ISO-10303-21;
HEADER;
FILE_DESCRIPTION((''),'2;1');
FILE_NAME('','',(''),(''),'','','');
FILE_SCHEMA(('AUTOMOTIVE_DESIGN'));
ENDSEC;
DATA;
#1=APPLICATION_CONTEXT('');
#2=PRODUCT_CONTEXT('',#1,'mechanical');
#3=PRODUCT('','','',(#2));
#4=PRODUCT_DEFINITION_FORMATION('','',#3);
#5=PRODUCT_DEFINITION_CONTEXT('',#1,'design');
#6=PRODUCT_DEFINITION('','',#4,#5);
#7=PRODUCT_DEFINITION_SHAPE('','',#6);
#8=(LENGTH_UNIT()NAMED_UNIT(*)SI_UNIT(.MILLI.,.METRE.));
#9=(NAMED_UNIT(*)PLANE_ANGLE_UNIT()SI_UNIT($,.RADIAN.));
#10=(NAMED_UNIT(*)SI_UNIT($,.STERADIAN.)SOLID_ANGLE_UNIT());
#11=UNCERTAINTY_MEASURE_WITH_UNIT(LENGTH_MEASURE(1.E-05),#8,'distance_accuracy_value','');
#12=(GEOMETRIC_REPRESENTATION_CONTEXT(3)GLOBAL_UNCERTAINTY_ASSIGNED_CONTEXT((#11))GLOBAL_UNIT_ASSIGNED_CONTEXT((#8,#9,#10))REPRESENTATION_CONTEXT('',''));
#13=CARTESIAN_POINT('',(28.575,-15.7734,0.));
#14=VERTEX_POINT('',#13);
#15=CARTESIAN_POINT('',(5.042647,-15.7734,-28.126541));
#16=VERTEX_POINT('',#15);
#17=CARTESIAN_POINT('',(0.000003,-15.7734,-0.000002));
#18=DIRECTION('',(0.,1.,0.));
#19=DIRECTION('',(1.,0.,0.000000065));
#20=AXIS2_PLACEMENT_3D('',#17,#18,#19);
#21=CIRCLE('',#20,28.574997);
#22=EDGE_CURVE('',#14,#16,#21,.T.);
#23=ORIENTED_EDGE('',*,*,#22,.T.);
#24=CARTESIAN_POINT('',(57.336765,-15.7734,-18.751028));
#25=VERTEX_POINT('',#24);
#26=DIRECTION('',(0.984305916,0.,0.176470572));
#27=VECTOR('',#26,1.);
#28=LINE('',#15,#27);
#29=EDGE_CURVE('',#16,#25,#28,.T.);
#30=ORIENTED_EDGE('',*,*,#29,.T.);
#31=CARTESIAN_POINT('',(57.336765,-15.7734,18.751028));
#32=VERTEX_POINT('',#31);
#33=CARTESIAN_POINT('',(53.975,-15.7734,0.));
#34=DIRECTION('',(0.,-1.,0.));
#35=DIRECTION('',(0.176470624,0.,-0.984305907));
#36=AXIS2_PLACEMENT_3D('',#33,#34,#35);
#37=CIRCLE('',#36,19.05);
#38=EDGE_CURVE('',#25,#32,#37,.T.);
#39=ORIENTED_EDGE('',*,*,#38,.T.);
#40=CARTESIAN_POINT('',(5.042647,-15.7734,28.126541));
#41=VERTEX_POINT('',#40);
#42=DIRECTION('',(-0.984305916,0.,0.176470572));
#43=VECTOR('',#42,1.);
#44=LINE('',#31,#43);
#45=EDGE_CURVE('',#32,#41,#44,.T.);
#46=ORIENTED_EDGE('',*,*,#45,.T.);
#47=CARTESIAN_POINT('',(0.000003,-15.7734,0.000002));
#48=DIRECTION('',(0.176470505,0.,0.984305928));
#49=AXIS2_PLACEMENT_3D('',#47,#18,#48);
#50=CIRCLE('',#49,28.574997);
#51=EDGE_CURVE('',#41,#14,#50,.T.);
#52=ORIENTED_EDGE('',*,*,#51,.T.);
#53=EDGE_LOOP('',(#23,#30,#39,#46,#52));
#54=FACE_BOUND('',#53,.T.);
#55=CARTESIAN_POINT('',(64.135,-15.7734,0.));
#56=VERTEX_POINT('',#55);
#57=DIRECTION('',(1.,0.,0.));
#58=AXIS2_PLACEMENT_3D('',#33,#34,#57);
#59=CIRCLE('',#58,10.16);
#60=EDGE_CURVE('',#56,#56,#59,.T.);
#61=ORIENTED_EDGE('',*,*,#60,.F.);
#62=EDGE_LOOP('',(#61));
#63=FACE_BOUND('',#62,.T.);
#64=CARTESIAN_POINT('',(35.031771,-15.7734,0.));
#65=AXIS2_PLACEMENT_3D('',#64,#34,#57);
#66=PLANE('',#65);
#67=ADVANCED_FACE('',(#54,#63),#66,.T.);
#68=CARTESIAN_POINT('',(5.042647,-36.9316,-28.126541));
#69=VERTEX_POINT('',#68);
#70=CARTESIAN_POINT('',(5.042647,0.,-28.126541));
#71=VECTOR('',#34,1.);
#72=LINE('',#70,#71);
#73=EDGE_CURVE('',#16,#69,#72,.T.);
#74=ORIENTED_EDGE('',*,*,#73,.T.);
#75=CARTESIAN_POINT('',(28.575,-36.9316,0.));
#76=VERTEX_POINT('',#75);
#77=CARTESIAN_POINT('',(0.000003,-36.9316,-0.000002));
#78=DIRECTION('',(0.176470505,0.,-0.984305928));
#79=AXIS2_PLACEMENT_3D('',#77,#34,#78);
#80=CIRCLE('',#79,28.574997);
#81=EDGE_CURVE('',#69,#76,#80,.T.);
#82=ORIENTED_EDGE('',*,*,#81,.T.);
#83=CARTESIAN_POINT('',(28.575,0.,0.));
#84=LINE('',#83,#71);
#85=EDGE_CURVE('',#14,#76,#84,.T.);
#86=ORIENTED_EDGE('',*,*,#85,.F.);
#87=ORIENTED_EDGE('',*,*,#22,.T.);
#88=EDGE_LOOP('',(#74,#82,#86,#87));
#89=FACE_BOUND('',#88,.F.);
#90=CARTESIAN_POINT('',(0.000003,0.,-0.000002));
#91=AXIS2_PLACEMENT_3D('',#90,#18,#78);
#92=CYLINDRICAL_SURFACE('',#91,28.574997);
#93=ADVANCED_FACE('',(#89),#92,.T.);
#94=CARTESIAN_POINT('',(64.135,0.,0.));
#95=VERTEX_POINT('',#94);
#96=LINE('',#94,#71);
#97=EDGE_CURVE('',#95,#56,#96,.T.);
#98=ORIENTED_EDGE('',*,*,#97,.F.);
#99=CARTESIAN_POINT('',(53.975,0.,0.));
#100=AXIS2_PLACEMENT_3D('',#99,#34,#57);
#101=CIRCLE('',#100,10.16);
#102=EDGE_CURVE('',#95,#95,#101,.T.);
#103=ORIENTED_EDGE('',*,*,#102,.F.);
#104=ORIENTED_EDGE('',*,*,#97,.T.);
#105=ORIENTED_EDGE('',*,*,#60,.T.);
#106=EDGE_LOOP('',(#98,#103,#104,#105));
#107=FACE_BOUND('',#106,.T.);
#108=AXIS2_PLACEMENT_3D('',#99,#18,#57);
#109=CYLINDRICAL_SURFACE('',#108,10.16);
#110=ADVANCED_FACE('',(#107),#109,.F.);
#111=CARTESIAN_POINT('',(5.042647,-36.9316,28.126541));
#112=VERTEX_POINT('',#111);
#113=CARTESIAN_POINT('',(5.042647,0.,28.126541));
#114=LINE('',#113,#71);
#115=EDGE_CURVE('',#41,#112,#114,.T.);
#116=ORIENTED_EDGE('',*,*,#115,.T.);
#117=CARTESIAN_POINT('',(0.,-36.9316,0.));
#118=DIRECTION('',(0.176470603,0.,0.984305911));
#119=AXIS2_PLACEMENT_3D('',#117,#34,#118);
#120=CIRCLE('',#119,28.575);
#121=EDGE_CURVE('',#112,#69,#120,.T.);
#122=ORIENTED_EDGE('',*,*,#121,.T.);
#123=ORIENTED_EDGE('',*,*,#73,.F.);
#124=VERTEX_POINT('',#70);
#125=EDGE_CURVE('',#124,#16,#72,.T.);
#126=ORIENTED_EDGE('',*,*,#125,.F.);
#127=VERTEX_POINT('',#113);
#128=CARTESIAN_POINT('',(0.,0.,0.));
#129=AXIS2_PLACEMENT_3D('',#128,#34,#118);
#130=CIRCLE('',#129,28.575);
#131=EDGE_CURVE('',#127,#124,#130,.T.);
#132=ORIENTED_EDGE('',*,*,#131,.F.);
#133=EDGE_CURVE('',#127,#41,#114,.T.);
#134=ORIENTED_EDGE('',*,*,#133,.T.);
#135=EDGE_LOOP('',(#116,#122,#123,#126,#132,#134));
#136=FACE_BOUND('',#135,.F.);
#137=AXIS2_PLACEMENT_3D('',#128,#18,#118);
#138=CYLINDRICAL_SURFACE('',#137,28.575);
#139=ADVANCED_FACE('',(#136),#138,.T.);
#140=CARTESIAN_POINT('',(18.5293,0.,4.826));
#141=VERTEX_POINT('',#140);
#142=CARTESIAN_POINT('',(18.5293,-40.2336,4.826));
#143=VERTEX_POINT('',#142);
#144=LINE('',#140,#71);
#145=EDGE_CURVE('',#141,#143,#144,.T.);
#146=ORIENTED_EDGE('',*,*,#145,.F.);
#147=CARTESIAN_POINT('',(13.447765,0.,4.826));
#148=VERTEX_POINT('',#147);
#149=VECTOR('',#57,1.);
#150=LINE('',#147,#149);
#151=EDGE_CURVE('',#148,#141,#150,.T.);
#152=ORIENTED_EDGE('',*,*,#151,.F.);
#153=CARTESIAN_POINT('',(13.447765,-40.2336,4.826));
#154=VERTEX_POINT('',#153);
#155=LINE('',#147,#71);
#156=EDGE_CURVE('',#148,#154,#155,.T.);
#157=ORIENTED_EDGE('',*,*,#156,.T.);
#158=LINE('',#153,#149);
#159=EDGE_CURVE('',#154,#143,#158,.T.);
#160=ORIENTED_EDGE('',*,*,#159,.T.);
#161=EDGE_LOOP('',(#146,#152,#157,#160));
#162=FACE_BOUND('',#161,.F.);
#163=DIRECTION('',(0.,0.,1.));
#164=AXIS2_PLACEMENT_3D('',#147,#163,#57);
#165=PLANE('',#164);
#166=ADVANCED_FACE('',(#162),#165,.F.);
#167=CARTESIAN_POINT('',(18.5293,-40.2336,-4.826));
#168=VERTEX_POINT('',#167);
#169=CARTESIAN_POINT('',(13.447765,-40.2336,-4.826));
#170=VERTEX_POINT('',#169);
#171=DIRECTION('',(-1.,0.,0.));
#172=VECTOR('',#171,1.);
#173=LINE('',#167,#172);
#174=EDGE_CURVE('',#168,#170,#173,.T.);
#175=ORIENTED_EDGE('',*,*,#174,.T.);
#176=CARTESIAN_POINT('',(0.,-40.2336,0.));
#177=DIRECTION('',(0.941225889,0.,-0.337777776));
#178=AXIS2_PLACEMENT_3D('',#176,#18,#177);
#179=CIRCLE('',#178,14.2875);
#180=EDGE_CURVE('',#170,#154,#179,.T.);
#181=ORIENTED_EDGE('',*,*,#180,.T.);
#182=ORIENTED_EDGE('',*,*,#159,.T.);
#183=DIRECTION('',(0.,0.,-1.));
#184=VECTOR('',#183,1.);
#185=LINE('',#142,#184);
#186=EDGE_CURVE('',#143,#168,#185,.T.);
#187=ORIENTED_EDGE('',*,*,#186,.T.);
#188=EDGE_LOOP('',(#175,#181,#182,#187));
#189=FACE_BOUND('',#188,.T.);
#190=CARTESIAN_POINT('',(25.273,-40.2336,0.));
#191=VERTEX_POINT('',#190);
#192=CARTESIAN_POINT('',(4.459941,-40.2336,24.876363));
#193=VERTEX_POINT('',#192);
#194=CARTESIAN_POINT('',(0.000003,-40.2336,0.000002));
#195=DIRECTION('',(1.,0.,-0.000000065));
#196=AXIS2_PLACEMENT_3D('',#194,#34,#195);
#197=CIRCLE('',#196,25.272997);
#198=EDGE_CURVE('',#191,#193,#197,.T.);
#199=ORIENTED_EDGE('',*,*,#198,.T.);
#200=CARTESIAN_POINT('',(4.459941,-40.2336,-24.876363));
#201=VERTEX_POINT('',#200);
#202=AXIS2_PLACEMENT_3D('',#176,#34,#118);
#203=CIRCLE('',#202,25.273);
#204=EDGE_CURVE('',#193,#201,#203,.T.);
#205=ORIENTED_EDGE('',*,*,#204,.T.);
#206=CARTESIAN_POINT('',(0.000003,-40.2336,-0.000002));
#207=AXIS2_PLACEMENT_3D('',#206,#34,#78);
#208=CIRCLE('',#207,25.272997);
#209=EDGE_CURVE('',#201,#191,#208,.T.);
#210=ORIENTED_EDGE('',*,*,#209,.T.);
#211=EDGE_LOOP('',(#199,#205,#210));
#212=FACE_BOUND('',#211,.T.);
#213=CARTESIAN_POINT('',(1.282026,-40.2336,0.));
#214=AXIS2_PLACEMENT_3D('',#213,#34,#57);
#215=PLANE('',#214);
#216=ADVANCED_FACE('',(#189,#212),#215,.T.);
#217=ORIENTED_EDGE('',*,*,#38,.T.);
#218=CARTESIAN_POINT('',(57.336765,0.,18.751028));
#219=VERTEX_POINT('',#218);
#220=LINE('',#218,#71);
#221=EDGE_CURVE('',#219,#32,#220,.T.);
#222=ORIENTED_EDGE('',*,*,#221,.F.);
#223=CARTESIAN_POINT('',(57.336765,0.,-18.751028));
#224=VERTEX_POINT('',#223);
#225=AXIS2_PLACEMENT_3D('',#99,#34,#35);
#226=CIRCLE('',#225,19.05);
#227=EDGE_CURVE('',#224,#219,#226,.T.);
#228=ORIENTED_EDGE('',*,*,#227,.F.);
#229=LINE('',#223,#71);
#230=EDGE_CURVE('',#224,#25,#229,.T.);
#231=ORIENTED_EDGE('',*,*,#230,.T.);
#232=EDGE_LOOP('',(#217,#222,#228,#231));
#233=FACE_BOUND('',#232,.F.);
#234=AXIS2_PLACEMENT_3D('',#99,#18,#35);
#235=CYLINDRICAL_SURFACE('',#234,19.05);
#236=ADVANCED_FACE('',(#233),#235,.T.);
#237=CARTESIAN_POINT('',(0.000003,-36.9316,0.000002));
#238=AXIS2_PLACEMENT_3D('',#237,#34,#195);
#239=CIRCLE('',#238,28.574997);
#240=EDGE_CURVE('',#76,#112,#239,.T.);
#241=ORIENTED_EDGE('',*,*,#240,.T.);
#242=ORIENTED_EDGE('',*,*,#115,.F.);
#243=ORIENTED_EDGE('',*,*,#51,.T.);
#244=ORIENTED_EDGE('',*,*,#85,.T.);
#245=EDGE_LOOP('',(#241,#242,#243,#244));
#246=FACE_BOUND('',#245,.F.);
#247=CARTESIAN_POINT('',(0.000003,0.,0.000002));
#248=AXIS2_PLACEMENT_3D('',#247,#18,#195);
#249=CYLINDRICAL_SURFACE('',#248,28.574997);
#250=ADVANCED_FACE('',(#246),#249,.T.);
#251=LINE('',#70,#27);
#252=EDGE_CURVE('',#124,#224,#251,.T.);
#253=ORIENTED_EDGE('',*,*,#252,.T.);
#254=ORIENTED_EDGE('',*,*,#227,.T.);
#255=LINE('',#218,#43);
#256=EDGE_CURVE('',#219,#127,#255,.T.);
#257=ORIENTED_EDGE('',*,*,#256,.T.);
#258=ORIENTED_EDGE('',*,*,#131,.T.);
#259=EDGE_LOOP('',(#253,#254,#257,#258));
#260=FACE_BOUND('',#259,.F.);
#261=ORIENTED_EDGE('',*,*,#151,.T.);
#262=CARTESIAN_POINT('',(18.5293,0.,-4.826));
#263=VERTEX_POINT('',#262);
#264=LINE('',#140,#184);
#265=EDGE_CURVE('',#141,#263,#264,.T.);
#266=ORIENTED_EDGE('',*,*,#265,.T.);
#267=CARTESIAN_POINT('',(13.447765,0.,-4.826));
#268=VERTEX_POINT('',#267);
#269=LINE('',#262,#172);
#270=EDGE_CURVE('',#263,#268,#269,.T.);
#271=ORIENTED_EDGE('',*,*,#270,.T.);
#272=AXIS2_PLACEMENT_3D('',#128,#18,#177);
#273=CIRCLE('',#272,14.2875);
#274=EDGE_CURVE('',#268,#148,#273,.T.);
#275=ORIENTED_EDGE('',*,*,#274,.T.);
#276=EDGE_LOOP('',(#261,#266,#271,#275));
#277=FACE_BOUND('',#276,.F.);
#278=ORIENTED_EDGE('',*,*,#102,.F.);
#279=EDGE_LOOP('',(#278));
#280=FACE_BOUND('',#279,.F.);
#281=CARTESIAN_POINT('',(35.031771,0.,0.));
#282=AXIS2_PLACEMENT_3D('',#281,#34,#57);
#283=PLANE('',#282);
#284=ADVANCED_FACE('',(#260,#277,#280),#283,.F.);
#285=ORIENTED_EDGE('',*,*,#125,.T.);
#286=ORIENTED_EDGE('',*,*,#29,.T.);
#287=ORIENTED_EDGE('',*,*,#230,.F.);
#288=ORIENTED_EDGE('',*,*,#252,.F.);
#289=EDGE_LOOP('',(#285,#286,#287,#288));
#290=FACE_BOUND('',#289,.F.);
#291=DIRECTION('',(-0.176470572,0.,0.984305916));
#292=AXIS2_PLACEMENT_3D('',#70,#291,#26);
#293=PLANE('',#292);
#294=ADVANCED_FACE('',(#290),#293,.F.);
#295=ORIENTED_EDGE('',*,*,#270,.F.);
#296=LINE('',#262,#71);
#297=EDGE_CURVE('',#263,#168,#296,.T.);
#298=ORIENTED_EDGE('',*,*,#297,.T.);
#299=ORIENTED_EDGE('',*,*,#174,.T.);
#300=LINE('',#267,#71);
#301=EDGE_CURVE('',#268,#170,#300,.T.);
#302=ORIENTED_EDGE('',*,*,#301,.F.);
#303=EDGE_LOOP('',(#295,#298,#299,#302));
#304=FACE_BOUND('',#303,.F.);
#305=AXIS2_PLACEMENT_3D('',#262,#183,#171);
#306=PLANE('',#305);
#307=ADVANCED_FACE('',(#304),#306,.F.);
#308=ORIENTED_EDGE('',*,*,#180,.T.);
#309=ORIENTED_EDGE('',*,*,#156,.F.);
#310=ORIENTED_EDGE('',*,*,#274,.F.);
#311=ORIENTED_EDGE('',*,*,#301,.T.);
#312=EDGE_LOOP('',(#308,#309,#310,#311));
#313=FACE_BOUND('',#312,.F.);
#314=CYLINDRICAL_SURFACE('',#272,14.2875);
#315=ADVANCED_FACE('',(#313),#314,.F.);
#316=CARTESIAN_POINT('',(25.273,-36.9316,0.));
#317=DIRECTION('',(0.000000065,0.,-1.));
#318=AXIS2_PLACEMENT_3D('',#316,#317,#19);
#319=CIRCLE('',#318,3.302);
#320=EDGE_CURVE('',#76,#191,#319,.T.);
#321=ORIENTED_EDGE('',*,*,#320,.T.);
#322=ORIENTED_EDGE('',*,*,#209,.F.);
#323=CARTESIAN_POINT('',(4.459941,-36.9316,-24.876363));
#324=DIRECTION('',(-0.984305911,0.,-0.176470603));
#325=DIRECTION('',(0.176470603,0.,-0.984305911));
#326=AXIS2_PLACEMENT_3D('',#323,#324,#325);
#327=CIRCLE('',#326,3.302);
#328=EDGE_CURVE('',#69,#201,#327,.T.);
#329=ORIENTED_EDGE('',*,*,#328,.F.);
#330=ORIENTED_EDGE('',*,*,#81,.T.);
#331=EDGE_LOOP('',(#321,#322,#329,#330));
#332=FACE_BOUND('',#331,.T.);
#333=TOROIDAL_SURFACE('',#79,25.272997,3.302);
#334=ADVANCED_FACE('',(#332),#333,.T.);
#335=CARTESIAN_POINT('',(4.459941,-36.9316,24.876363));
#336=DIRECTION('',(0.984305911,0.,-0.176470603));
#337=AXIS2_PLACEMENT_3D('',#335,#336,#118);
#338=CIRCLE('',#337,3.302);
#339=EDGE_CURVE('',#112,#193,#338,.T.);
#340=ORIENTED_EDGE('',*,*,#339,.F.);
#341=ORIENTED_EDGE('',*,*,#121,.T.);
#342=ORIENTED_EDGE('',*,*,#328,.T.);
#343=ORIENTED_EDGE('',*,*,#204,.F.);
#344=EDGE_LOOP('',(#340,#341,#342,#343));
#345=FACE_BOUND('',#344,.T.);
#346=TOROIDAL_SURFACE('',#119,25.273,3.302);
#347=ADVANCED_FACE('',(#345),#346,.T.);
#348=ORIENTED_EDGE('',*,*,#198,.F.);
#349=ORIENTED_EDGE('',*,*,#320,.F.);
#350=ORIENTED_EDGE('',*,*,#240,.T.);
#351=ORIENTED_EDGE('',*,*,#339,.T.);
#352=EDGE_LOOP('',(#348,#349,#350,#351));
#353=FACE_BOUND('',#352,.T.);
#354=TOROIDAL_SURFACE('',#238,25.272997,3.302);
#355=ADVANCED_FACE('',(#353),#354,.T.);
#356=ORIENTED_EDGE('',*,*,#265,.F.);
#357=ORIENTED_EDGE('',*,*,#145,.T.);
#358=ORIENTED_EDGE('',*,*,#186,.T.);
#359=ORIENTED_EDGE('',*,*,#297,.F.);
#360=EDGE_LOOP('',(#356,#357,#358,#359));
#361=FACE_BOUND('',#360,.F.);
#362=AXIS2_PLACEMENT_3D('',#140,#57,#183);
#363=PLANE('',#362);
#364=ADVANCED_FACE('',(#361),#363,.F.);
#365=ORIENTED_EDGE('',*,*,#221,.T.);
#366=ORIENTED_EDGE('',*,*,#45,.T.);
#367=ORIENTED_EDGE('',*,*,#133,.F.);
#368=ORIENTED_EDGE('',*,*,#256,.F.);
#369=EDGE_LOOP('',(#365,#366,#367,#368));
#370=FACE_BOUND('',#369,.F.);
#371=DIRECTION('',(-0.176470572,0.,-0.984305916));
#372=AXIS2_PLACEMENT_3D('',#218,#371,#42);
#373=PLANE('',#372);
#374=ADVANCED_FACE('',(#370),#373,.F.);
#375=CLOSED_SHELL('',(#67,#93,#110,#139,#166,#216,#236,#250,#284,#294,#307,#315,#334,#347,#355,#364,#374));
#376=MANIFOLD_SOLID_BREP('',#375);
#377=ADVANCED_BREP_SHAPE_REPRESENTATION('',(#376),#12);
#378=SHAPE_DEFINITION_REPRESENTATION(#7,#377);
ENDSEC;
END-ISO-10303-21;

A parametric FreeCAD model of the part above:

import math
import FreeCAD as App
import Part
import Sketcher

V = App.Vector
Q = App.Units.Quantity


def edges_at(feature, points):
    """Names of the edges that pass closest to the given points."""
    edges = feature.Shape.Edges
    near = lambda p: min(range(len(edges)), key=lambda i: edges[i].distToShape(Part.Vertex(*p))[0])
    return sorted({f"Edge{near(p) + 1}" for p in points})

doc = App.newDocument("Part")
body = doc.addObject("PartDesign::Body", "Body")

# Sketch on XZ plane
sketch1 = body.newObject("Sketcher::SketchObject", "Sketch")
sketch1.AttachmentSupport = (doc.getObject("XZ_Plane"), [""])
sketch1.MapMode = "FlatFace"
sketch1.addGeometry(Part.ArcOfCircle(Part.Circle(V(0, 0, 0), V(0, 0, 1), 29), math.radians(-80), math.radians(0)), False)
sketch1.addGeometry(Part.ArcOfCircle(Part.Circle(V(0, 0, 0), V(0, 0, 1), 29), math.radians(0), math.radians(80)), False)
sketch1.addGeometry(Part.ArcOfCircle(Part.Circle(V(0, 0, 0), V(0, 0, 1), 29), math.radians(80), math.radians(280)), False)
sketch1.addGeometry(Part.LineSegment(V(19, -5, 0), V(13, -5, 0)), False)
sketch1.addGeometry(Part.ArcOfCircle(Part.Circle(V(0, 0, 0), V(0, 0, 1), 14), math.radians(20), math.radians(340)), False)
sketch1.addGeometry(Part.LineSegment(V(13, 5, 0), V(19, 5, 0)), False)
sketch1.addGeometry(Part.LineSegment(V(19, 5, 0), V(19, -5, 0)), False)
sketch1.addConstraint(Sketcher.Constraint("Tangent", 0, 2, 1, 1))
sketch1.addConstraint(Sketcher.Constraint("Tangent", 1, 2, 2, 1))
sketch1.addConstraint(Sketcher.Constraint("Tangent", 2, 2, 0, 1))
sketch1.addConstraint(Sketcher.Constraint("Coincident", 3, 2, 4, 2))
sketch1.addConstraint(Sketcher.Constraint("Coincident", 4, 1, 5, 1))
sketch1.addConstraint(Sketcher.Constraint("Coincident", 5, 2, 6, 1))
sketch1.addConstraint(Sketcher.Constraint("Coincident", 6, 2, 3, 1))
sketch1.addConstraint(Sketcher.Constraint("Horizontal", 3))
sketch1.addConstraint(Sketcher.Constraint("Horizontal", 5))
sketch1.addConstraint(Sketcher.Constraint("Vertical", 6))
sketch1.addConstraint(Sketcher.Constraint("Coincident", 0, 3, -1, 1))
sketch1.addConstraint(Sketcher.Constraint("Coincident", 4, 3, -1, 1))
sketch1.addConstraint(Sketcher.Constraint("PointOnObject", 0, 2, -1))
sketch1.addConstraint(Sketcher.Constraint("Vertical", 1, 2, 2, 2))
sketch1.addConstraint(Sketcher.Constraint("Vertical", 3, 2, 4, 1))
sketch1.addConstraint(Sketcher.Constraint("Radius", 0, Q("1.1249999 in")))
sketch1.addConstraint(Sketcher.Constraint("Radius", 4, Q("0.5625 in")))
sketch1.addConstraint(Sketcher.Constraint("DistanceY", 6, 2, 6, 1, Q("0.38 in")))
sketch1.addConstraint(Sketcher.Constraint("DistanceX", -1, 1, 5, 2, Q("0.7295 in")))
sketch1.addConstraint(Sketcher.Constraint("DistanceY", -1, 1, 1, 2, Q("28.126541 mm")))
pad1 = body.newObject("PartDesign::Pad", "Pad")
pad1.Profile = sketch1
pad1.Length = Q("1.584 in")

# Sketch on XZ plane
sketch2 = body.newObject("Sketcher::SketchObject", "Sketch001")
sketch2.AttachmentSupport = (doc.getObject("XZ_Plane"), [""])
sketch2.MapMode = "FlatFace"
sketch2.addGeometry(Part.ArcOfCircle(Part.Circle(V(0, 0, 0), V(0, 0, 1), 29), math.radians(0), math.radians(80)), False)
sketch2.addGeometry(Part.ArcOfCircle(Part.Circle(V(0, 0, 0), V(0, 0, 1), 29), math.radians(-80), math.radians(0)), False)
sketch2.addGeometry(Part.LineSegment(V(5, -28, 0), V(57, -19, 0)), False)
sketch2.addGeometry(Part.ArcOfCircle(Part.Circle(V(54, 0, 0), V(0, 0, 1), 19), math.radians(-80), math.radians(80)), False)
sketch2.addGeometry(Part.LineSegment(V(57, 19, 0), V(5, 28, 0)), False)
sketch2.addGeometry(Part.Circle(V(54, 0, 0), V(0, 0, 1), 10), False)
sketch2.addConstraint(Sketcher.Constraint("Tangent", 0, 1, 1, 2))
sketch2.addConstraint(Sketcher.Constraint("Tangent", 1, 1, 2, 1))
sketch2.addConstraint(Sketcher.Constraint("Tangent", 2, 2, 3, 1))
sketch2.addConstraint(Sketcher.Constraint("Tangent", 3, 2, 4, 1))
sketch2.addConstraint(Sketcher.Constraint("Tangent", 4, 2, 0, 2))
sketch2.addConstraint(Sketcher.Constraint("Coincident", 0, 3, -1, 1))
sketch2.addConstraint(Sketcher.Constraint("Coincident", 5, 3, 3, 3))
sketch2.addConstraint(Sketcher.Constraint("Equal", 0, 1))
sketch2.addConstraint(Sketcher.Constraint("PointOnObject", 3, 3, -1))
sketch2.addConstraint(Sketcher.Constraint("PointOnObject", 0, 1, -1))
sketch2.addConstraint(Sketcher.Constraint("Diameter", 5, Q("0.8 in")))
sketch2.addConstraint(Sketcher.Constraint("Radius", 3, Q("0.75 in")))
sketch2.addConstraint(Sketcher.Constraint("Radius", 0, Q("1.1249999 in")))
sketch2.addConstraint(Sketcher.Constraint("DistanceX", 0, 1, 3, 3, Q("1 in")))
pad2 = body.newObject("PartDesign::Pad", "Pad001")
pad2.Profile = sketch2
pad2.Length = Q("0.621 in")
doc.recompute()

fillet = body.newObject("PartDesign::Fillet", "Fillet")
fillet.Base = (pad2, edges_at(pad2, [(-28.575, -40.234, 0)]))
fillet.Radius = Q("0.13 in")

doc.recompute()
